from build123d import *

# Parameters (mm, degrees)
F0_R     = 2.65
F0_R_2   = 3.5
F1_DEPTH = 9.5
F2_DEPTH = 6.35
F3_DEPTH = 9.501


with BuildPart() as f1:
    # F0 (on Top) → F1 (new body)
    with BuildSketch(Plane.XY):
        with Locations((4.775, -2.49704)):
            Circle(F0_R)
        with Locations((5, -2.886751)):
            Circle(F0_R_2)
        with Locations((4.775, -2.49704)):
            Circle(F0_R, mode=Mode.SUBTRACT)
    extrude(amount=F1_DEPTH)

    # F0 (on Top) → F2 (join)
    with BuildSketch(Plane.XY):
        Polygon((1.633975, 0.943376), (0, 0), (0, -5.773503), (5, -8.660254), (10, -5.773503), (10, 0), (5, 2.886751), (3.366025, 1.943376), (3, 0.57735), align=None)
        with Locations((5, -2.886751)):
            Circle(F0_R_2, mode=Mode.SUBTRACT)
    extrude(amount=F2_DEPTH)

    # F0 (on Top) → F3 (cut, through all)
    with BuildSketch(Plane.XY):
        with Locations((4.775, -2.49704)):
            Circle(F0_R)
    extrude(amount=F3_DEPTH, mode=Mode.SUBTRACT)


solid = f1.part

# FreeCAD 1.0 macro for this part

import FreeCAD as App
import Part
import Sketcher

V = App.Vector
Q = App.Units.Quantity

doc = App.newDocument("Part")
params = doc.addObject("Spreadsheet::Sheet", "Params")
for row, (alias, value) in enumerate([
    ("sketch1_diameter", "7 mm"),
    ("sketch1_diameter2", "5.3 mm"),
    ("pad1_length", "9.5 mm"),
    ("sketch2_diameter", "7 mm"),
    ("pad2_length", "6.35 mm"),
    ("sketch3_diameter", "5.3 mm"),
], start=1):
    params.set(f"A{row}", alias)
    params.set(f"B{row}", "=" + value)
    params.setAlias(f"B{row}", alias)

body = doc.addObject("PartDesign::Body", "Body")

# Sketch on XY plane
sketch1 = body.newObject("Sketcher::SketchObject", "Sketch")
sketch1.AttachmentSupport = (doc.getObject("XY_Plane"), [""])
sketch1.MapMode = "FlatFace"
sketch1.addGeometry(Part.Circle(V(5, -2.886751, 0), V(0, 0, 1), 3.5), False)
sketch1.addGeometry(Part.Circle(V(4.775, -2.49704, 0), V(0, 0, 1), 2.65), False)
sketch1.addConstraint(Sketcher.Constraint("Diameter", 0, Q("7 mm")))
sketch1.addConstraint(Sketcher.Constraint("Diameter", 1, Q("5.3 mm")))
sketch1.addConstraint(Sketcher.Constraint("DistanceX", -1, 1, 0, 3, Q("5 mm")))
sketch1.addConstraint(Sketcher.Constraint("DistanceX", -1, 1, 1, 3, Q("4.775 mm")))
sketch1.addConstraint(Sketcher.Constraint("DistanceY", 0, 3, -1, 1, Q("2.886751 mm")))
sketch1.addConstraint(Sketcher.Constraint("DistanceY", 1, 3, -1, 1, Q("2.49704 mm")))
sketch1.setExpression("Constraints[0]", "Params.sketch1_diameter")
sketch1.setExpression("Constraints[1]", "Params.sketch1_diameter2")
pad1 = body.newObject("PartDesign::Pad", "Pad")
pad1.Profile = sketch1
pad1.setExpression("Length", "Params.pad1_length")

# Sketch on XY plane
sketch2 = body.newObject("Sketcher::SketchObject", "Sketch001")
sketch2.AttachmentSupport = (doc.getObject("XY_Plane"), [""])
sketch2.MapMode = "FlatFace"
sketch2.addGeometry(Part.LineSegment(V(1.633975, 0.943376, 0), V(0, 0, 0)), False)
sketch2.addGeometry(Part.LineSegment(V(0, 0, 0), V(0, -5.773503, 0)), False)
sketch2.addGeometry(Part.LineSegment(V(0, -5.773503, 0), V(5, -8.660254, 0)), False)
sketch2.addGeometry(Part.LineSegment(V(5, -8.660254, 0), V(10, -5.773503, 0)), False)
sketch2.addGeometry(Part.LineSegment(V(10, -5.773503, 0), V(10, 0, 0)), False)
sketch2.addGeometry(Part.LineSegment(V(10, 0, 0), V(5, 2.886751, 0)), False)
sketch2.addGeometry(Part.LineSegment(V(5, 2.886751, 0), V(3.366025, 1.943376, 0)), False)
sketch2.addGeometry(Part.LineSegment(V(3.366025, 1.943376, 0), V(3, 0.57735, 0)), False)
sketch2.addGeometry(Part.LineSegment(V(3, 0.57735, 0), V(1.633975, 0.943376, 0)), False)
sketch2.addGeometry(Part.Circle(V(5, -2.886751, 0), V(0, 0, 1), 3.5), False)
sketch2.addConstraint(Sketcher.Constraint("Coincident", 0, 2, 1, 1))
sketch2.addConstraint(Sketcher.Constraint("Coincident", 1, 2, 2, 1))
sketch2.addConstraint(Sketcher.Constraint("Coincident", 2, 2, 3, 1))
sketch2.addConstraint(Sketcher.Constraint("Coincident", 3, 2, 4, 1))
sketch2.addConstraint(Sketcher.Constraint("Coincident", 4, 2, 5, 1))
sketch2.addConstraint(Sketcher.Constraint("Coincident", 5, 2, 6, 1))
sketch2.addConstraint(Sketcher.Constraint("Coincident", 6, 2, 7, 1))
sketch2.addConstraint(Sketcher.Constraint("Coincident", 7, 2, 8, 1))
sketch2.addConstraint(Sketcher.Constraint("Coincident", 8, 2, 0, 1))
sketch2.addConstraint(Sketcher.Constraint("Vertical", 1))
sketch2.addConstraint(Sketcher.Constraint("Vertical", 4))
sketch2.addConstraint(Sketcher.Constraint("Coincident", 0, 2, -1, 1))
sketch2.addConstraint(Sketcher.Constraint("PointOnObject", 4, 2, -1))
sketch2.addConstraint(Sketcher.Constraint("Parallel", 0, 3))
sketch2.addConstraint(Sketcher.Constraint("Parallel", 2, 5))
sketch2.addConstraint(Sketcher.Constraint("Parallel", 3, 6))
sketch2.addConstraint(Sketcher.Constraint("Perpendicular", 7, 8))
sketch2.addConstraint(Sketcher.Constraint("Horizontal", 1, 2, 3, 2))
sketch2.addConstraint(Sketcher.Constraint("Vertical", 9, 3, 2, 2))
sketch2.addConstraint(Sketcher.Constraint("Vertical", 2, 2, 5, 2))
sketch2.addConstraint(Sketcher.Constraint("Equal", 2, 3))
sketch2.addConstraint(Sketcher.Constraint("Equal", 0, 6))
sketch2.addConstraint(Sketcher.Constraint("Equal", 7, 8))
sketch2.addConstraint(Sketcher.Constraint("Diameter", 9, Q("7 mm")))
sketch2.addConstraint(Sketcher.Constraint("Angle", 0, Q("-149.999998 deg")))
sketch2.addConstraint(Sketcher.Constraint("DistanceX", -1, 1, 9, 3, Q("5 mm")))
sketch2.addConstraint(Sketcher.Constraint("DistanceX", -1, 1, 7, 2, Q("3 mm")))
sketch2.addConstraint(Sketcher.Constraint("DistanceY", 9, 3, 5, 2, Q("5.773502 mm")))
sketch2.addConstraint(Sketcher.Constraint("DistanceY", 1, 2, 1, 1, Q("5.773503 mm")))
sketch2.setExpression("Constraints[23]", "Params.sketch2_diameter")
pad2 = body.newObject("PartDesign::Pad", "Pad001")
pad2.Profile = sketch2
pad2.setExpression("Length", "Params.pad2_length")

# Sketch on XY plane
sketch3 = body.newObject("Sketcher::SketchObject", "Sketch002")
sketch3.AttachmentSupport = (doc.getObject("XY_Plane"), [""])
sketch3.MapMode = "FlatFace"
sketch3.addGeometry(Part.Circle(V(4.775, -2.49704, 0), V(0, 0, 1), 2.65), False)
sketch3.addConstraint(Sketcher.Constraint("Diameter", 0, Q("5.3 mm")))
sketch3.addConstraint(Sketcher.Constraint("DistanceX", -1, 1, 0, 3, Q("4.775 mm")))
sketch3.addConstraint(Sketcher.Constraint("DistanceY", 0, 3, -1, 1, Q("2.49704 mm")))
sketch3.setExpression("Constraints[0]", "Params.sketch3_diameter")
pocket1 = body.newObject("PartDesign::Pocket", "Pocket")
pocket1.Profile = sketch3
pocket1.Type = "ThroughAll"
pocket1.Reversed = True

doc.recompute()
